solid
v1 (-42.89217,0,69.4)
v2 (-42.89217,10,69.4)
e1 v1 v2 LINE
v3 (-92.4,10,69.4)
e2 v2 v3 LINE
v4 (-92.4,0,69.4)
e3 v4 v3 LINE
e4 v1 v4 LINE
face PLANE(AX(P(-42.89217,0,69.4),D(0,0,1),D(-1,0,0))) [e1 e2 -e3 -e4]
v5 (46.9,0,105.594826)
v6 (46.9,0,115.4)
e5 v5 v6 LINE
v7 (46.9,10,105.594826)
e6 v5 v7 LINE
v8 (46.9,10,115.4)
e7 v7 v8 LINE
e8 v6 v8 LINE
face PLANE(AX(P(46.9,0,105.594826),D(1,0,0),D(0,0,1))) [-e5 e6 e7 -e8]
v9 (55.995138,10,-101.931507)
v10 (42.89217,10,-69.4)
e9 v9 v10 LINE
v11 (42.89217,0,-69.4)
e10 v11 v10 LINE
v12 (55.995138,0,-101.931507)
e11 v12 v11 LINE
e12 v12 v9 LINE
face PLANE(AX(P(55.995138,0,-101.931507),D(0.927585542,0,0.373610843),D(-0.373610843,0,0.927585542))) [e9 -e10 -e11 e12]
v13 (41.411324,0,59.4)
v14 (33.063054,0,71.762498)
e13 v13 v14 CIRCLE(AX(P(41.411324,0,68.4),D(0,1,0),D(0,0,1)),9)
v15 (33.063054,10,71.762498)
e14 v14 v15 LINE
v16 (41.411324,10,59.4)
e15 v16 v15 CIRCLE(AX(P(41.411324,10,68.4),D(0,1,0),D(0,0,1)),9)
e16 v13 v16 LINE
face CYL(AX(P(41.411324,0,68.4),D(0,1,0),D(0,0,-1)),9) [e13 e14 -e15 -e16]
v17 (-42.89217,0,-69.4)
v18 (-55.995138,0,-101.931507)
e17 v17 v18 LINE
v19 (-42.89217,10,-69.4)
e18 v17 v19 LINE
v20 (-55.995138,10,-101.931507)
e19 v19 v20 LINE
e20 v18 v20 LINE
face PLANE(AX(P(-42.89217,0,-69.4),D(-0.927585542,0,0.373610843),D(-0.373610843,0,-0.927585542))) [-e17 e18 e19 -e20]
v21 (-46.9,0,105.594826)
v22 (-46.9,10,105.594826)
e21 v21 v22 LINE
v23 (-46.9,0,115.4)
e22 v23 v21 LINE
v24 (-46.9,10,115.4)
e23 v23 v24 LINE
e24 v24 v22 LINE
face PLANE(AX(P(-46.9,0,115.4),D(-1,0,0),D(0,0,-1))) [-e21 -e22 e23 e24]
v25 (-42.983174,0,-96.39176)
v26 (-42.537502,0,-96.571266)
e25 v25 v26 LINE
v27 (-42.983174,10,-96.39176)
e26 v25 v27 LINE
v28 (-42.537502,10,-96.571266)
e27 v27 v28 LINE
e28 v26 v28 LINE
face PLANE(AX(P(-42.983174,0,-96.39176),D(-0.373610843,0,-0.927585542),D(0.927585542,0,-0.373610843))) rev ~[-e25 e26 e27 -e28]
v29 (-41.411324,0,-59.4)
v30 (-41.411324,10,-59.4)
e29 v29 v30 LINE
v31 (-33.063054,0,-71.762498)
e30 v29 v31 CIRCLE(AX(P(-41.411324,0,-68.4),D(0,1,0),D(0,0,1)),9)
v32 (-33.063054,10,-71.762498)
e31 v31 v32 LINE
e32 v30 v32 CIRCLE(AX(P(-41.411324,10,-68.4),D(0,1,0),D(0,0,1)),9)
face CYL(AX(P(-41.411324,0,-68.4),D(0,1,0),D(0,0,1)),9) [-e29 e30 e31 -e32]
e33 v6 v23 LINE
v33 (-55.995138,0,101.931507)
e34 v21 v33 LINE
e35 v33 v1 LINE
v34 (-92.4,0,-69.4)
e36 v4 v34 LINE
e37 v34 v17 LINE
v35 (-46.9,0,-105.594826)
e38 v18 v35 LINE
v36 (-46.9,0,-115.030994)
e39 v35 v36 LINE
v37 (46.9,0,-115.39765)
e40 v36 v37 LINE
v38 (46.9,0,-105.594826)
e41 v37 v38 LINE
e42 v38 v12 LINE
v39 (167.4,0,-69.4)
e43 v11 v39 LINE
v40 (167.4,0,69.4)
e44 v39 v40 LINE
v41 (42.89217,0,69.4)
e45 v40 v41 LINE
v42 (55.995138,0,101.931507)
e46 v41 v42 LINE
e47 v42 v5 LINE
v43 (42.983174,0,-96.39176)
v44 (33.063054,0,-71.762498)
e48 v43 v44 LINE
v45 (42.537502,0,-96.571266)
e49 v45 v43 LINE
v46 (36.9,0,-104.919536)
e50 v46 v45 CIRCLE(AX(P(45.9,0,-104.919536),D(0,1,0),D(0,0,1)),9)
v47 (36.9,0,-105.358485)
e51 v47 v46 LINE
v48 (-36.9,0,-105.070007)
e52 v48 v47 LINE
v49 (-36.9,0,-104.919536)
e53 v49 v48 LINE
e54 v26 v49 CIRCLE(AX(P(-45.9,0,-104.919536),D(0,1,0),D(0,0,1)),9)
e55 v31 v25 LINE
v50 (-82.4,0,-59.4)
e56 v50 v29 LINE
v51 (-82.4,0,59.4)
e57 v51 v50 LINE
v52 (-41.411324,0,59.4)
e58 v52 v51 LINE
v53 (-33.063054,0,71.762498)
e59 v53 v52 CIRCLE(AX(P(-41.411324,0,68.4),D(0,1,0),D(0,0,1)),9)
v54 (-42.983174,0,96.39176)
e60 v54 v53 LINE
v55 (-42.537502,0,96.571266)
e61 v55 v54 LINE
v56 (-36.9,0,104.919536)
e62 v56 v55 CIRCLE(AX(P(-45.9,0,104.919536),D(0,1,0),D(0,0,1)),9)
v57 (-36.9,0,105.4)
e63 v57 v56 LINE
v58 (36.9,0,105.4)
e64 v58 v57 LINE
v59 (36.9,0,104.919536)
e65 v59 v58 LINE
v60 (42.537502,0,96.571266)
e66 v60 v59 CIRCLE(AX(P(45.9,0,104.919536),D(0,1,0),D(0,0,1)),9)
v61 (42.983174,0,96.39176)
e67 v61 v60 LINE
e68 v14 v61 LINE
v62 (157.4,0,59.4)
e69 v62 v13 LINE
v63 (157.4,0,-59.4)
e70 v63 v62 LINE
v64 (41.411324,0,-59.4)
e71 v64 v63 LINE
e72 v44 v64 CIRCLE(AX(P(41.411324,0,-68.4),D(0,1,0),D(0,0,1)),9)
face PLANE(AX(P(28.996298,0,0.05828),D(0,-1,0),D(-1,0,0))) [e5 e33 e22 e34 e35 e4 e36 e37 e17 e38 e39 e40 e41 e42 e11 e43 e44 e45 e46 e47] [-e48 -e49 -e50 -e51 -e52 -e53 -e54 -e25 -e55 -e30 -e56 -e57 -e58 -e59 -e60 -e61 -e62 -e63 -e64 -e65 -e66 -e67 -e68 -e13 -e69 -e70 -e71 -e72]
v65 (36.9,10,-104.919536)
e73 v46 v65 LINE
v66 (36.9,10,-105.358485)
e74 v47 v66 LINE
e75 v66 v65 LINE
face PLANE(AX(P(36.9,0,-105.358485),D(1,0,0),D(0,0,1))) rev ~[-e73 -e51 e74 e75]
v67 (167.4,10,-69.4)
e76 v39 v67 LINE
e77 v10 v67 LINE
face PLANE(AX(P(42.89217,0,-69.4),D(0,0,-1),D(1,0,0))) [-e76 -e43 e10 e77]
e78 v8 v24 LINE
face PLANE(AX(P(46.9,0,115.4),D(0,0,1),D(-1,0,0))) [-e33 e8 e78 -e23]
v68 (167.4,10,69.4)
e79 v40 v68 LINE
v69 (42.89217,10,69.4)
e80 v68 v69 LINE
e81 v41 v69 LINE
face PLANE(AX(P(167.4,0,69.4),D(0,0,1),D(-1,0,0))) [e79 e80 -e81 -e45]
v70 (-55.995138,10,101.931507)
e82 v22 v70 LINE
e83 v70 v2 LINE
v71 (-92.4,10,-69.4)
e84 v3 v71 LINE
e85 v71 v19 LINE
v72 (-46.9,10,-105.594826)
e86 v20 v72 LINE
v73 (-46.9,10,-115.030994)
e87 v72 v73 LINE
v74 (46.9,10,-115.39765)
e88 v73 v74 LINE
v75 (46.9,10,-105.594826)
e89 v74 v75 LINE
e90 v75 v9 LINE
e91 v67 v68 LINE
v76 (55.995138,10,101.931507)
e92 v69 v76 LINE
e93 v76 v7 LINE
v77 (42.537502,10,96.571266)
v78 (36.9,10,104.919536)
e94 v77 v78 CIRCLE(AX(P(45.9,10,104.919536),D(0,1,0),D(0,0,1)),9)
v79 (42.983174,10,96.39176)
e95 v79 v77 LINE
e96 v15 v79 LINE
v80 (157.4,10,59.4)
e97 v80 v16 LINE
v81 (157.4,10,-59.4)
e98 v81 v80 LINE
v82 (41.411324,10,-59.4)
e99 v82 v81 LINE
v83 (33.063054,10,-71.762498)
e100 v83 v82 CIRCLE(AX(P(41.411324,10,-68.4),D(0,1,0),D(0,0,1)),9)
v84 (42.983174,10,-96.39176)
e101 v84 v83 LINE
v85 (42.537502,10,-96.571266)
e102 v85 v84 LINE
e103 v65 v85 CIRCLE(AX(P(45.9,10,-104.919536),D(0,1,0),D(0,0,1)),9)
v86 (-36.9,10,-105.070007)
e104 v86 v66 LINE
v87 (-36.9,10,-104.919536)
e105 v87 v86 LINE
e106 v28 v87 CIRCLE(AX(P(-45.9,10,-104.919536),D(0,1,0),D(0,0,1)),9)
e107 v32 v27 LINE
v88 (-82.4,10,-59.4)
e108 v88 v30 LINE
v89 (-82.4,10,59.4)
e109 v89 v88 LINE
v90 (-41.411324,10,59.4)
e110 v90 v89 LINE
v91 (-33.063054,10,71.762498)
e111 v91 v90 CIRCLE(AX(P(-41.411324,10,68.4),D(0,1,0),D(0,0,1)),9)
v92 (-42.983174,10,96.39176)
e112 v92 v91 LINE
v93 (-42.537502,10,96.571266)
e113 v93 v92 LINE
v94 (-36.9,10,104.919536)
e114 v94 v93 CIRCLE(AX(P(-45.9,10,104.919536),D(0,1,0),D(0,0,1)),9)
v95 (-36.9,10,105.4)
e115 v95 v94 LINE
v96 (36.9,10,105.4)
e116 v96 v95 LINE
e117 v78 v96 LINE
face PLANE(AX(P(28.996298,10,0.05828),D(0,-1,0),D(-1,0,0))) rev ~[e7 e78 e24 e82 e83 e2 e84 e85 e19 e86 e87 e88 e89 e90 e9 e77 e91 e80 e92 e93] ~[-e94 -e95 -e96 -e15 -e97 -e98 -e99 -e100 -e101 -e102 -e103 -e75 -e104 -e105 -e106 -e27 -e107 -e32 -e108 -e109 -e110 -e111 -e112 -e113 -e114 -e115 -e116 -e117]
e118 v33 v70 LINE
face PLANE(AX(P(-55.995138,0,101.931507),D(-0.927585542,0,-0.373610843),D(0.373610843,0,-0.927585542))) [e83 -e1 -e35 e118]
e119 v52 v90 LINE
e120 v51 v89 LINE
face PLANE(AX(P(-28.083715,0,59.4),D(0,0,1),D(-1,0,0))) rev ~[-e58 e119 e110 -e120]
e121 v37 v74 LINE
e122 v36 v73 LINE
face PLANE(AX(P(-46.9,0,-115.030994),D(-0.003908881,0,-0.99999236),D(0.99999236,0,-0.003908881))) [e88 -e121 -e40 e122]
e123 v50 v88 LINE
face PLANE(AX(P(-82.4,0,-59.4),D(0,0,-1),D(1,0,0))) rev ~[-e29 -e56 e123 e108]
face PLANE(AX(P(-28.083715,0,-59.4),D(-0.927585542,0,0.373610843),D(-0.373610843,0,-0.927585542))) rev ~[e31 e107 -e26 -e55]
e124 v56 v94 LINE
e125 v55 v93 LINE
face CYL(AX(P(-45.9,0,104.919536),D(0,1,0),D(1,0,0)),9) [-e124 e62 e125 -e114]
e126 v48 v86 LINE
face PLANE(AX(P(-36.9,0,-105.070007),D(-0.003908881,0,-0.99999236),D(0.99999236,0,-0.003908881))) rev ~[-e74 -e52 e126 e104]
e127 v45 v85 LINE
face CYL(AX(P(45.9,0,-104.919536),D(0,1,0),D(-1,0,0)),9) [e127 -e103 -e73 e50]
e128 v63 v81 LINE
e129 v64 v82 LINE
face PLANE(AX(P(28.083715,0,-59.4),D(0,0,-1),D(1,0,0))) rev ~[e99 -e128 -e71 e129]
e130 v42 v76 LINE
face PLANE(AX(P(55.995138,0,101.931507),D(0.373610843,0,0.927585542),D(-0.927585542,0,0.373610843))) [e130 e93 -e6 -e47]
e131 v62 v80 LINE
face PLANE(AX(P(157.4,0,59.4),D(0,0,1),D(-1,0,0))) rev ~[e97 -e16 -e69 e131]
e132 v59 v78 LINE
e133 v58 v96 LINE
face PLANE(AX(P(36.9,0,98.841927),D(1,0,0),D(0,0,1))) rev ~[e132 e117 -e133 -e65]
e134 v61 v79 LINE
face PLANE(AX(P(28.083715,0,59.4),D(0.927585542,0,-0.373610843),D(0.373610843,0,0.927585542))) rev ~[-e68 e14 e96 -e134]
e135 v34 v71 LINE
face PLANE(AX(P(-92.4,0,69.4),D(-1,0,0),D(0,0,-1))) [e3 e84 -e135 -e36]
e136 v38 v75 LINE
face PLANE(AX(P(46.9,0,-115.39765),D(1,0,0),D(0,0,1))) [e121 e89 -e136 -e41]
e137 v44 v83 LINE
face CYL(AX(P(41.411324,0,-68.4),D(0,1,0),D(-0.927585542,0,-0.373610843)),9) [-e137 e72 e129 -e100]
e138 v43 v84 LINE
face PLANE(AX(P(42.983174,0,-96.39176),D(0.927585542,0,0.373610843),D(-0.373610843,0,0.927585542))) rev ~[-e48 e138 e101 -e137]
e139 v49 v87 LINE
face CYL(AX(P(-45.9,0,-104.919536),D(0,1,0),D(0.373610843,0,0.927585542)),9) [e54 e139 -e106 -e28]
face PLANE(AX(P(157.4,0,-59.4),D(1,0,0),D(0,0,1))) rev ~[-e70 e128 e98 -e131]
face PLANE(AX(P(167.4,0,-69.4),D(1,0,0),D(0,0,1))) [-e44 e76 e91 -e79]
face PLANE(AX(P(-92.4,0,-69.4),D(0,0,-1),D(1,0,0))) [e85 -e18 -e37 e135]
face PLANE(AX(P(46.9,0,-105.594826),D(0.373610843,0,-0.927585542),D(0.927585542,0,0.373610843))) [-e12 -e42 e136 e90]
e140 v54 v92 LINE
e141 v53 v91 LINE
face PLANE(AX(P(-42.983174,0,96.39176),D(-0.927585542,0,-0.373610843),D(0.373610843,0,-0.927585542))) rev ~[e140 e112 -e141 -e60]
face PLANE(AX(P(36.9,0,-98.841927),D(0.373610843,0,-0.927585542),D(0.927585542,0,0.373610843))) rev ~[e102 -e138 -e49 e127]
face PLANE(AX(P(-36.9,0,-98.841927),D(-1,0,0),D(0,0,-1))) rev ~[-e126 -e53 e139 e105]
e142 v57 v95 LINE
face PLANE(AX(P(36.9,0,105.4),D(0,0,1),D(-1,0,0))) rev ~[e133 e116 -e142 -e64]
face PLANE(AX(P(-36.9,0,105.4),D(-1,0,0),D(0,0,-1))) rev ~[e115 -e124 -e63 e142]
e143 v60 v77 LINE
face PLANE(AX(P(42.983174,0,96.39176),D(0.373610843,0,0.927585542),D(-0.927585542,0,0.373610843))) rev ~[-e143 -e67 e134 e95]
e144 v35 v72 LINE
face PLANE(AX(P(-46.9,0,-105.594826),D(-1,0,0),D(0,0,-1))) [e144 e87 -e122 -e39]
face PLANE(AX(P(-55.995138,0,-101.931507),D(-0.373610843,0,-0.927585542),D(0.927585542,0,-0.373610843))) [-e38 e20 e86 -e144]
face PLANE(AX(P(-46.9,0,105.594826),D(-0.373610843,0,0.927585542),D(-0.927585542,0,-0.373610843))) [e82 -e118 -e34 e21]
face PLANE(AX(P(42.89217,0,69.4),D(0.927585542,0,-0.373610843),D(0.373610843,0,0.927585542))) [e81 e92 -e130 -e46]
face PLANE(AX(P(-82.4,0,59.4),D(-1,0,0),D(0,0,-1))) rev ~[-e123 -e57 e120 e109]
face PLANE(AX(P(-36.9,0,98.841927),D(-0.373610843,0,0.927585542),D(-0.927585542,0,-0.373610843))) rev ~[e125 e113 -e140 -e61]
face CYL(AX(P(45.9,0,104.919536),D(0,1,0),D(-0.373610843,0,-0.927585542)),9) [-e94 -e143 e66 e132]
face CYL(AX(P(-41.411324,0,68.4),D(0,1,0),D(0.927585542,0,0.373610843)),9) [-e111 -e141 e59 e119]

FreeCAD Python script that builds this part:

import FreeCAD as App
import Part
import Sketcher


def edges_at(feature, points):
    """Names of the edges that pass closest to the given points."""
    edges = feature.Shape.Edges
    near = lambda p: min(range(len(edges)), key=lambda i: edges[i].distToShape(Part.Vertex(*p))[0])
    return sorted({f"Edge{near(p) + 1}" for p in points})


def add_polygon(sketch, points):
    """Adds a closed chain of lines whose ends are joined by coincident constraints."""
    first, n = sketch.GeometryCount, len(points)
    for a, b in zip(points, points[1:] + points[:1]):
        sketch.addGeometry(Part.LineSegment(App.Vector(*a, 0), App.Vector(*b, 0)), False)
    for i in range(n):
        sketch.addConstraint(Sketcher.Constraint("Coincident", first + i, 2, first + (i + 1) % n, 1))

doc = App.newDocument("Part")
body = doc.addObject("PartDesign::Body", "Body")

# Sketch on XZ plane
sketch1 = body.newObject("Sketcher::SketchObject", "Sketch")
sketch1.AttachmentSupport = (doc.getObject("XZ_Plane"), [""])
sketch1.MapMode = "FlatFace"
add_polygon(sketch1, [(-92, -69), (-92, 69), (-43, 69), (-56, 102), (-47, 106), (-47, 115), (47, 115), (47, 106), (56, 102), (43, 69), (167, 69), (167, -69), (43, -69), (56, -102), (47, -106), (47, -115), (-47, -115), (-47, -106), (-56, -102), (-43, -69)])  # lines 0-19
add_polygon(sketch1, [(-82, 59), (-82, -59), (-28, -59), (-43, -96), (-37, -99), (-37, -105), (37, -105), (37, -99), (43, -96), (28, -59), (157, -59), (157, 59), (28, 59), (43, 96), (37, 99), (37, 105), (-37, 105), (-37, 99), (-43, 96), (-28, 59)])  # lines 20-39
sketch1.addConstraint(Sketcher.Constraint("Vertical", 0))
sketch1.addConstraint(Sketcher.Constraint("Horizontal", 1))
sketch1.addConstraint(Sketcher.Constraint("Vertical", 4))
sketch1.addConstraint(Sketcher.Constraint("Horizontal", 5))
sketch1.addConstraint(Sketcher.Constraint("Vertical", 6))
sketch1.addConstraint(Sketcher.Constraint("Horizontal", 9))
sketch1.addConstraint(Sketcher.Constraint("Vertical", 10))
sketch1.addConstraint(Sketcher.Constraint("Horizontal", 11))
sketch1.addConstraint(Sketcher.Constraint("Vertical", 14))
sketch1.addConstraint(Sketcher.Constraint("Vertical", 16))
sketch1.addConstraint(Sketcher.Constraint("Horizontal", 19))
sketch1.addConstraint(Sketcher.Constraint("Vertical", 20))
sketch1.addConstraint(Sketcher.Constraint("Horizontal", 21))
sketch1.addConstraint(Sketcher.Constraint("Vertical", 24))
sketch1.addConstraint(Sketcher.Constraint("Vertical", 26))
sketch1.addConstraint(Sketcher.Constraint("Horizontal", 29))
sketch1.addConstraint(Sketcher.Constraint("Vertical", 30))
sketch1.addConstraint(Sketcher.Constraint("Horizontal", 31))
sketch1.addConstraint(Sketcher.Constraint("Vertical", 34))
sketch1.addConstraint(Sketcher.Constraint("Horizontal", 35))
sketch1.addConstraint(Sketcher.Constraint("Vertical", 36))
sketch1.addConstraint(Sketcher.Constraint("Horizontal", 39))
sketch1.addConstraint(Sketcher.Constraint("Symmetric", 1, 2, 11, 2, -1, 1))
sketch1.addConstraint(Sketcher.Constraint("Symmetric", 2, 2, 12, 2, -1, 1))
sketch1.addConstraint(Sketcher.Constraint("Symmetric", 3, 2, 13, 2, -1, 1))
sketch1.addConstraint(Sketcher.Constraint("Symmetric", 6, 2, 16, 2, -1, 1))
sketch1.addConstraint(Sketcher.Constraint("Symmetric", 7, 2, 17, 2, -1, 1))
sketch1.addConstraint(Sketcher.Constraint("Symmetric", 8, 2, 18, 2, -1, 1))
sketch1.addConstraint(Sketcher.Constraint("Symmetric", 21, 2, 31, 2, -1, 1))
sketch1.addConstraint(Sketcher.Constraint("Symmetric", 22, 2, 32, 2, -1, 1))
sketch1.addConstraint(Sketcher.Constraint("Symmetric", 23, 2, 33, 2, -1, 1))
sketch1.addConstraint(Sketcher.Constraint("Symmetric", 26, 2, 36, 2, -1, 1))
sketch1.addConstraint(Sketcher.Constraint("Symmetric", 27, 2, 37, 2, -1, 1))
sketch1.addConstraint(Sketcher.Constraint("Symmetric", 28, 2, 38, 2, -1, 1))
sketch1.addConstraint(Sketcher.Constraint("Symmetric", 3, 2, 6, 2, -2))
sketch1.addConstraint(Sketcher.Constraint("Symmetric", 2, 2, 7, 2, -2))
sketch1.addConstraint(Sketcher.Constraint("Symmetric", 1, 2, 8, 2, -2))
sketch1.addConstraint(Sketcher.Constraint("Symmetric", 23, 2, 26, 2, -2))
sketch1.addConstraint(Sketcher.Constraint("Symmetric", 22, 2, 27, 2, -2))
sketch1.addConstraint(Sketcher.Constraint("Symmetric", 21, 2, 28, 2, -2))
sketch1.addConstraint(Sketcher.Constraint("Perpendicular", 2, 3))
sketch1.addConstraint(Sketcher.Constraint("Parallel", 18, 22))
sketch1.addConstraint(Sketcher.Constraint("Perpendicular", 22, 23))
sketch1.addConstraint(Sketcher.Constraint("Parallel", 15, 25))
sketch1.addConstraint(Sketcher.Constraint("DistanceX", 5, 1, 5, 2, 93.8))
sketch1.addConstraint(Sketcher.Constraint("DistanceX", 35, 2, 35, 1, 73.8))
sketch1.addConstraint(Sketcher.Constraint("DistanceY", 0, 1, 0, 2, 138.8))
sketch1.addConstraint(Sketcher.Constraint("DistanceY", 20, 2, 20, 1, 118.8))
sketch1.addConstraint(Sketcher.Constraint("DistanceY", 1, 2, 4, 2, 46.0))
sketch1.addConstraint(Sketcher.Constraint("DistanceX", 19, 2, 20, 2, 10.0))
sketch1.addConstraint(Sketcher.Constraint("DistanceX", 29, 2, 10, 2, 10.0))
sketch1.addConstraint(Sketcher.Constraint("DistanceY", 34, 2, 5, 2, 10.0))
sketch1.addConstraint(Sketcher.Constraint("DistanceX", 0, 2, -1, 1, 92.4))
sketch1.addConstraint(Sketcher.Constraint("DistanceX", -1, 1, 9, 2, 167.4))
sketch1.addConstraint(Sketcher.Constraint("DistanceX", 1, 1, 1, 2, 49.50783))
sketch1.addConstraint(Sketcher.Constraint("DistanceY", 16, 1, 16, 2, 9.436168))
sketch1.addConstraint(Sketcher.Constraint("DistanceY", 24, 2, 24, 1, 6.22808))
sketch1.addConstraint(Sketcher.Constraint("DistanceY", 16, 2, 23, 2, 6.752899))
sketch1.addConstraint(Sketcher.Constraint("DistanceY", 24, 2, 17, 2, 3.1385))
sketch1.addConstraint(Sketcher.Constraint("Distance", 22, 39.879621))
sketch1.addConstraint(Sketcher.Constraint("DistanceX", 21, 1, 21, 2, 54.316285))
sketch1.addConstraint(Sketcher.Constraint("DistanceY", 14, 2, 14, 1, 9.802824))
pad1 = body.newObject("PartDesign::Pad", "Pad")
pad1.Profile = sketch1
pad1.Length = 10
pad1.Reversed = True
doc.recompute()

fillet = body.newObject("PartDesign::Fillet", "Fillet")
fillet.Base = (pad1, edges_at(pad1, [
    (-28.084, 5, 59.4),
    (-36.9, 5, 98.842),
    (36.9, 5, 98.842),
    (28.084, 5, 59.4),
    (28.084, 5, -59.4),
    (36.9, 5, -98.842),
    (-36.9, 5, -98.842),
    (-28.084, 5, -59.4),
]))
fillet.Radius = 9

doc.recompute()
